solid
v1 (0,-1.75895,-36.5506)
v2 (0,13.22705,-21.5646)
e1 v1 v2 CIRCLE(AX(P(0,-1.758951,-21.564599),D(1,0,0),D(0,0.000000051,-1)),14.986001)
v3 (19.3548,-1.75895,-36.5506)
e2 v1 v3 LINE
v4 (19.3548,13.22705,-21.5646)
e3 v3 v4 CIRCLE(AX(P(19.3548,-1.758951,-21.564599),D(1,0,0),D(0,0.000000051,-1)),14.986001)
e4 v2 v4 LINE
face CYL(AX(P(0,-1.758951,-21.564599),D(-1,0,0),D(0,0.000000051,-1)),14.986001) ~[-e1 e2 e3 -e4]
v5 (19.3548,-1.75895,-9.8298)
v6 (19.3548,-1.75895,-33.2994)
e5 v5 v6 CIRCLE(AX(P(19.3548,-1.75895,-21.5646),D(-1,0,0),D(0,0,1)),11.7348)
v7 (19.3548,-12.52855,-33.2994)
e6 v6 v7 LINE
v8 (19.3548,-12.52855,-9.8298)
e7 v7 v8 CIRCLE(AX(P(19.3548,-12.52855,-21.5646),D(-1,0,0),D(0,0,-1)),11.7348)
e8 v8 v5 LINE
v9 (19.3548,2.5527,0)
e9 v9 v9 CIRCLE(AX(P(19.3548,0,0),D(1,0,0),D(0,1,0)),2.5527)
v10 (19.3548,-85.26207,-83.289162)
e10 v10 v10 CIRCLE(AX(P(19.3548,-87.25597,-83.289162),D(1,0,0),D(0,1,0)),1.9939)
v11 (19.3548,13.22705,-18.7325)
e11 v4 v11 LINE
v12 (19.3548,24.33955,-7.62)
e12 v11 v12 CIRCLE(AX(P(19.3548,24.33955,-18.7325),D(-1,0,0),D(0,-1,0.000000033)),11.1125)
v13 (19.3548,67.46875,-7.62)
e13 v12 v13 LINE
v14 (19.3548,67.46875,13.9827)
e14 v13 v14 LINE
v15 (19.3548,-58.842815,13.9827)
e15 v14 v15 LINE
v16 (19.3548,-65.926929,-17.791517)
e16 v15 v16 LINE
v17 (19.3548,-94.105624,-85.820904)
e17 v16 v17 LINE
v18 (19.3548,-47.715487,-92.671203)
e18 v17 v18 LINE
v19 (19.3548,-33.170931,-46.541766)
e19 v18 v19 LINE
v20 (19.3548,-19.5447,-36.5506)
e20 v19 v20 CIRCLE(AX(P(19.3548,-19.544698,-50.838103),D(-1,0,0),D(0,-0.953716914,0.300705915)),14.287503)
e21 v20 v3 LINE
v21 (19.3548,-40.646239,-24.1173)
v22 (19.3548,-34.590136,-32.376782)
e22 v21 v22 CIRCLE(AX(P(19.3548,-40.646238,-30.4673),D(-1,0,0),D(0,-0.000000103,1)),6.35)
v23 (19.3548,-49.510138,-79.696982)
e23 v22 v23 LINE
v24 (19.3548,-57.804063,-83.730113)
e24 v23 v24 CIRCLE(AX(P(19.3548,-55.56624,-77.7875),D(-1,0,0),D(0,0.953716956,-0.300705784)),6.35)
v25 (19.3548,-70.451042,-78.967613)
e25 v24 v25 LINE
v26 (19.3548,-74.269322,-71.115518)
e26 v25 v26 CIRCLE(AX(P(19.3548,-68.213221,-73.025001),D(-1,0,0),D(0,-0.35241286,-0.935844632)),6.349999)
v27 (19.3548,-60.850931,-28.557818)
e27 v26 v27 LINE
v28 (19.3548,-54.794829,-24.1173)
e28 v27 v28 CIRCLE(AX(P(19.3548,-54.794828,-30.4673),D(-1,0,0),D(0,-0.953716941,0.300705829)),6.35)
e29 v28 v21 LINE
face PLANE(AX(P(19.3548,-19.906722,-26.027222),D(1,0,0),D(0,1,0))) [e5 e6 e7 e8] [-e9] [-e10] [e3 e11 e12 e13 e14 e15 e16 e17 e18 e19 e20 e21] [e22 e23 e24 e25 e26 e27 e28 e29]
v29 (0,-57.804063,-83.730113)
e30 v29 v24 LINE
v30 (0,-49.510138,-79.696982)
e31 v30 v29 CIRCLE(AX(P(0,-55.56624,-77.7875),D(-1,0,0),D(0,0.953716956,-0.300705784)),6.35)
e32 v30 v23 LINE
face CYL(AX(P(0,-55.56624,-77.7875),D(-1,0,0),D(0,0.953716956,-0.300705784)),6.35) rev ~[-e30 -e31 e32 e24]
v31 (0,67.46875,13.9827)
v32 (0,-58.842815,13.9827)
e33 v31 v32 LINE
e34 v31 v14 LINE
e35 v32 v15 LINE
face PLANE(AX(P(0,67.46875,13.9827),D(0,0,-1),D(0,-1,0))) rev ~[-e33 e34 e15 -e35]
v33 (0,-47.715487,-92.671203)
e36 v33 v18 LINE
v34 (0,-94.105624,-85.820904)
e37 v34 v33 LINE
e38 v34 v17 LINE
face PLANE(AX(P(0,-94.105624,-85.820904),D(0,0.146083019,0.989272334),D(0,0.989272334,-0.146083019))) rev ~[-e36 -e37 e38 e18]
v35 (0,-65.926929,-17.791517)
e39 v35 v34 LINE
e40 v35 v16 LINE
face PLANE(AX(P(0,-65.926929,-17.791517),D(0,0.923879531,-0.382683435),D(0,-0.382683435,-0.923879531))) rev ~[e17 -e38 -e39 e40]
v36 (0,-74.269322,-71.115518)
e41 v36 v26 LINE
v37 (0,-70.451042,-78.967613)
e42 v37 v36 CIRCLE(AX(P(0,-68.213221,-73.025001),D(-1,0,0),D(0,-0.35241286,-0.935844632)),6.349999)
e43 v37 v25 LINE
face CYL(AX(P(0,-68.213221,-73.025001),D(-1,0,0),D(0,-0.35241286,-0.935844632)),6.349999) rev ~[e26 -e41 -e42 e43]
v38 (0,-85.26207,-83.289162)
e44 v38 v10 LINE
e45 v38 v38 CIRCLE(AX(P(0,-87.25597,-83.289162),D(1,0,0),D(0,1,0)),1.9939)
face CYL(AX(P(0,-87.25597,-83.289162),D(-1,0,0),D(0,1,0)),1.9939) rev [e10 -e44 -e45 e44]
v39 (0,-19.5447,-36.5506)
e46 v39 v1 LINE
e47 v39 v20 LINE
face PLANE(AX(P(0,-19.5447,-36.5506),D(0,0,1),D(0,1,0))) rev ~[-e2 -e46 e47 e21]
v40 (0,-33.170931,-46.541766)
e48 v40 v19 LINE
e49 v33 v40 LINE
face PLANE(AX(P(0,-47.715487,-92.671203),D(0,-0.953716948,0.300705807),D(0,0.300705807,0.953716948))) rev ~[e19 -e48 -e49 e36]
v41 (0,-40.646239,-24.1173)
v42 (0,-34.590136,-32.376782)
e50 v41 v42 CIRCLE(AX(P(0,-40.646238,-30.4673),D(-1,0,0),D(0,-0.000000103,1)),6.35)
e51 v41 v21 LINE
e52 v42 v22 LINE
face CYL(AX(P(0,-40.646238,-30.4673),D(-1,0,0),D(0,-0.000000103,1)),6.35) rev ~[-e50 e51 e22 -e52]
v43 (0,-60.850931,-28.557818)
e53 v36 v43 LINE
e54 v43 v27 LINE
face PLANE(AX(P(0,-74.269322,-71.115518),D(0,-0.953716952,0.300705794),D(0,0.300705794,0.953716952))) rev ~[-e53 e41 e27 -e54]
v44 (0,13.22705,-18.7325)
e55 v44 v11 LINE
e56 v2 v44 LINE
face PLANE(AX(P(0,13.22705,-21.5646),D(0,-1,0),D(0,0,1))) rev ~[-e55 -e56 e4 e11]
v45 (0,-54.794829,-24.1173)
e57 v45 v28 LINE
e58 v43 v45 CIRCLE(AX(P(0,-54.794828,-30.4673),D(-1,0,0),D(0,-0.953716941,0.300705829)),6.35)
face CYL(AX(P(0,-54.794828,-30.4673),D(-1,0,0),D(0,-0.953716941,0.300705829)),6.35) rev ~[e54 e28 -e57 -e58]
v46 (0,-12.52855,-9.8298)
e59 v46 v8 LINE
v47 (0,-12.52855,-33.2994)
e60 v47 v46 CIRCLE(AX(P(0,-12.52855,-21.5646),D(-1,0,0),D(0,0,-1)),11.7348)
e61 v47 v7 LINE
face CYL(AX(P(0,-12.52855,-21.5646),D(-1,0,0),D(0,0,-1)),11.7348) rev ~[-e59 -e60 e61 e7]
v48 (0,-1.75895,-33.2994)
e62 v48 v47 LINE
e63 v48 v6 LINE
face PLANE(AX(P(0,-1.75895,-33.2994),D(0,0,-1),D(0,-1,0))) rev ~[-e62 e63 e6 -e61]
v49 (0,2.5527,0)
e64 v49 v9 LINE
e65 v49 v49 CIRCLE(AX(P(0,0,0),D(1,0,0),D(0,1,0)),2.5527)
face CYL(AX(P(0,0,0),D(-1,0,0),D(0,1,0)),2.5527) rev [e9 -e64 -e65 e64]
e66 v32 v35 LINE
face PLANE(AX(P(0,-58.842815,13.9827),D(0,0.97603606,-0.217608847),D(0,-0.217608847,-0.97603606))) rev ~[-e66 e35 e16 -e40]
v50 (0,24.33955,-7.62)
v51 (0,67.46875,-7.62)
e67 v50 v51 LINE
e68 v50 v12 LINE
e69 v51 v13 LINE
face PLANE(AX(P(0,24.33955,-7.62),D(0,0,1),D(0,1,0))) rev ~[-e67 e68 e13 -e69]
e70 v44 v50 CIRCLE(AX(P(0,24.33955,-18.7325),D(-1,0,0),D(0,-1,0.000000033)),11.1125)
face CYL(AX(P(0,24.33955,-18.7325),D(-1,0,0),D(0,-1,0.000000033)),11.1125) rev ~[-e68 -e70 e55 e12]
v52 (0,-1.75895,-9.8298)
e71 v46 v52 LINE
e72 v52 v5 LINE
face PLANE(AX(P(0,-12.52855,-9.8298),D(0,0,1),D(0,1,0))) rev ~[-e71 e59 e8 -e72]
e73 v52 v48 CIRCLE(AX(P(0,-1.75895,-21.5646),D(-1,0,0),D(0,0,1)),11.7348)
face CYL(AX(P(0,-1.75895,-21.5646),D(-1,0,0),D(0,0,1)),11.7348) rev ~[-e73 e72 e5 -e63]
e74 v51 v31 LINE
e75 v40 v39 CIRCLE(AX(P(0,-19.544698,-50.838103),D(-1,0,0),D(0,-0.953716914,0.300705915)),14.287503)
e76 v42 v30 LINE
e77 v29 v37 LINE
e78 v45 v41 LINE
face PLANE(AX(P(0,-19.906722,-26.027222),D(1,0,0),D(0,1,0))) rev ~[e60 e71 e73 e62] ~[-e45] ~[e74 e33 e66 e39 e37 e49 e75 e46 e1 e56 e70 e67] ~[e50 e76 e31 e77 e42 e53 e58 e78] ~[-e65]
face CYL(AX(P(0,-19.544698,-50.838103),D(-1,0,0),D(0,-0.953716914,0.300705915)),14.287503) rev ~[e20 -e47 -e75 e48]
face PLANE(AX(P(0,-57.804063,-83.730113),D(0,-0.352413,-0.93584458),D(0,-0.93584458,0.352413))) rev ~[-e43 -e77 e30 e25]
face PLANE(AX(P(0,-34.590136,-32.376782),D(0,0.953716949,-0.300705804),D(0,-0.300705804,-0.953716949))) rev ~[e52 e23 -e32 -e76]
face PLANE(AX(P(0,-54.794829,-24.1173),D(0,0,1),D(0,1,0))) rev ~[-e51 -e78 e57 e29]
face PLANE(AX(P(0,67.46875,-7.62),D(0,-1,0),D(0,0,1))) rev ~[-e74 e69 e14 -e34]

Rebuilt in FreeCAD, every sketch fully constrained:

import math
import FreeCAD as App
import Part
import Sketcher

V = App.Vector
Q = App.Units.Quantity

doc = App.newDocument("Part")
params = doc.addObject("Spreadsheet::Sheet", "Params")
for row, (alias, value) in enumerate([
    ("sketch1_radius", "0.59 in"),
    ("sketch1_radius2", "0.25 in"),
    ("sketch1_diameter", "0.157 in"),
    ("sketch1_diameter2", "0.201 in"),
    ("sketch1_radius3", "0.5625001 in"),
    ("pad1_length", "0.762 in"),
], start=1):
    params.set(f"A{row}", alias)
    params.set(f"B{row}", "=" + value)
    params.setAlias(f"B{row}", alias)

body = doc.addObject("PartDesign::Body", "Body")

# Sketch on YZ plane
sketch1 = body.newObject("Sketcher::SketchObject", "Sketch")
sketch1.AttachmentSupport = (doc.getObject("YZ_Plane"), [""])
sketch1.MapMode = "FlatFace"
sketch1.addGeometry([
    Part.LineSegment(V(-94.1, -85.8, 0), V(-47.7, -92.7, 0)),  # 0
    Part.LineSegment(V(-47.7, -92.7, 0), V(-33.2, -46.5, 0)),  # 1
    Part.ArcOfCircle(Part.Circle(V(-19.5, -50.8, 0), V(0, 0, 1), 14.3), math.radians(90), math.radians(162)),  # 2
    Part.LineSegment(V(-19.5, -36.6, 0), V(-1.8, -36.6, 0)),  # 3
    Part.ArcOfCircle(Part.Circle(V(-1.8, -21.6, 0), V(0, 0, 1), 15), math.radians(-90), math.radians(0)),  # 4
    Part.LineSegment(V(13.2, -21.6, 0), V(13.2, -18.7, 0)),  # 5
    Part.ArcOfCircle(Part.Circle(V(24.3, -18.7, 0), V(0, 0, 1), 11.1), math.radians(90), math.radians(180)),  # 6
    Part.LineSegment(V(24.3, -7.6, 0), V(67.5, -7.6, 0)),  # 7
    Part.LineSegment(V(67.5, -7.6, 0), V(67.5, 14, 0)),  # 8
    Part.LineSegment(V(67.5, 14, 0), V(-58.8, 14, 0)),  # 9
    Part.LineSegment(V(-58.8, 14, 0), V(-65.9, -17.8, 0)),  # 10
    Part.LineSegment(V(-65.9, -17.8, 0), V(-94.1, -85.8, 0)),  # 11
    Part.Circle(V(-87.3, -83.3, 0), V(0, 0, 1), 2),  # 12
    Part.LineSegment(V(-74.3, -71.1, 0), V(-60.9, -28.6, 0)),  # 13
    Part.ArcOfCircle(Part.Circle(V(-54.8, -30.5, 0), V(0, 0, 1), 6.4), math.radians(90), math.radians(162)),  # 14
    Part.LineSegment(V(-54.8, -24.1, 0), V(-40.6, -24.1, 0)),  # 15
    Part.ArcOfCircle(Part.Circle(V(-40.6, -30.5, 0), V(0, 0, 1), 6.3), math.radians(-18), math.radians(90)),  # 16
    Part.LineSegment(V(-34.6, -32.4, 0), V(-49.5, -79.7, 0)),  # 17
    Part.ArcOfCircle(Part.Circle(V(-55.6, -77.8, 0), V(0, 0, 1), 6.3), math.radians(-111), math.radians(-17)),  # 18
    Part.LineSegment(V(-57.8, -83.7, 0), V(-70.5, -79, 0)),  # 19
    Part.ArcOfCircle(Part.Circle(V(-68.2, -73, 0), V(0, 0, 1), 6.3), math.radians(162), math.radians(249)),  # 20
    Part.LineSegment(V(-1.8, -33.3, 0), V(-12.5, -33.3, 0)),  # 21
    Part.ArcOfCircle(Part.Circle(V(-12.5, -21.6, 0), V(0, 0, 1), 11.7), math.radians(90), math.radians(270)),  # 22
    Part.LineSegment(V(-12.5, -9.8, 0), V(-1.8, -9.8, 0)),  # 23
    Part.ArcOfCircle(Part.Circle(V(-1.8, -21.6, 0), V(0, 0, 1), 11.7), math.radians(-90), math.radians(90)),  # 24
    Part.Circle(V(0, 0, 0), V(0, 0, 1), 2.6),  # 25
], False)
sketch1.addConstraint([
    Sketcher.Constraint("Coincident", 0, 2, 1, 1),
    Sketcher.Constraint("Tangent", 1, 2, 2, 2),
    Sketcher.Constraint("Tangent", 2, 1, 3, 1),
    Sketcher.Constraint("Tangent", 3, 2, 4, 1),
    Sketcher.Constraint("Tangent", 4, 2, 5, 1),
    Sketcher.Constraint("Tangent", 5, 2, 6, 2),
    Sketcher.Constraint("Tangent", 6, 1, 7, 1),
    Sketcher.Constraint("Coincident", 7, 2, 8, 1),
    Sketcher.Constraint("Coincident", 8, 2, 9, 1),
    Sketcher.Constraint("Coincident", 9, 2, 10, 1),
    Sketcher.Constraint("Coincident", 10, 2, 11, 1),
    Sketcher.Constraint("Coincident", 11, 2, 0, 1),
    Sketcher.Constraint("Tangent", 13, 2, 14, 2),
    Sketcher.Constraint("Tangent", 14, 1, 15, 1),
    Sketcher.Constraint("Tangent", 15, 2, 16, 2),
    Sketcher.Constraint("Tangent", 16, 1, 17, 1),
    Sketcher.Constraint("Tangent", 17, 2, 18, 2),
    Sketcher.Constraint("Tangent", 18, 1, 19, 1),
    Sketcher.Constraint("Tangent", 19, 2, 20, 2),
    Sketcher.Constraint("Tangent", 20, 1, 13, 1),
    Sketcher.Constraint("Tangent", 21, 2, 22, 2),
    Sketcher.Constraint("Tangent", 22, 1, 23, 1),
    Sketcher.Constraint("Tangent", 23, 2, 24, 2),
    Sketcher.Constraint("Tangent", 24, 1, 21, 1),
    Sketcher.Constraint("Horizontal", 3),
    Sketcher.Constraint("Vertical", 5),
    Sketcher.Constraint("Horizontal", 7),
    Sketcher.Constraint("Vertical", 8),
    Sketcher.Constraint("Horizontal", 9),
    Sketcher.Constraint("Horizontal", 15),
    Sketcher.Constraint("Horizontal", 21),
    Sketcher.Constraint("Horizontal", 23),
    Sketcher.Constraint("Coincident", 25, 3, -1, 1),
    Sketcher.Constraint("Coincident", 24, 3, 4, 3),
    Sketcher.Constraint("Equal", 14, 16),
    Sketcher.Constraint("Equal", 16, 18),
    Sketcher.Constraint("Equal", 18, 20),
    Sketcher.Constraint("Parallel", 1, 13),
    Sketcher.Constraint("Parallel", 13, 17),
    Sketcher.Constraint("Radius", 4, Q("0.59 in")),
    Sketcher.Constraint("Radius", 14, Q("0.25 in")),
    Sketcher.Constraint("Diameter", 12, Q("0.157 in")),
    Sketcher.Constraint("Diameter", 25, Q("0.201 in")),
    Sketcher.Constraint("Radius", 2, Q("0.5625001 in")),
    Sketcher.Constraint("Radius", 6, Q("0.4375 in")),
    Sketcher.Constraint("Radius", 22, Q("0.462 in")),
    Sketcher.Constraint("DistanceY", 6, 1, -1, 1, Q("0.3 in")),
    Sketcher.Constraint("Angle", 0, Q("-8.399999 deg")),
    Sketcher.Constraint("Angle", 1, Q("72.5 deg")),
    Sketcher.Constraint("Angle", 11, Q("-112.5 deg")),
    Sketcher.Constraint("DistanceX", 7, 1, 7, 2, Q("1.698 in")),
    Sketcher.Constraint("DistanceX", 21, 2, 21, 1, Q("0.424 in")),
    Sketcher.Constraint("DistanceY", 14, 3, 9, 2, Q("1.75 in")),
    Sketcher.Constraint("DistanceY", 5, 1, 5, 2, Q("0.1115 in")),
    Sketcher.Constraint("DistanceY", 8, 1, 8, 2, Q("0.8505 in")),
    Sketcher.Constraint("DistanceY", 18, 3, -1, 1, Q("3.0625 in")),
    Sketcher.Constraint("DistanceY", 20, 3, -1, 1, Q("2.875 in")),
    Sketcher.Constraint("DistanceX", -1, 1, 7, 2, Q("2.65625 in")),
    Sketcher.Constraint("DistanceX", 3, 1, 3, 2, Q("17.78575 mm")),
    Sketcher.Constraint("DistanceX", 15, 1, 15, 2, Q("14.14859 mm")),
    Sketcher.Constraint("DistanceY", 0, 2, 2, 3, Q("41.8331 mm")),
    Sketcher.Constraint("DistanceX", 10, 2, 14, 3, Q("11.132101 mm")),
    Sketcher.Constraint("DistanceY", 0, 2, 11, 2, Q("6.850299 mm")),
    Sketcher.Constraint("DistanceY", 13, 2, 10, 2, Q("10.766301 mm")),
    Sketcher.Constraint("DistanceX", 9, 2, 9, 1, Q("126.311565 mm")),
    Sketcher.Constraint("DistanceX", 12, 3, -1, 1, Q("87.25597 mm")),
    Sketcher.Constraint("DistanceY", 12, 3, 2, 3, Q("32.451059 mm")),
])
sketch1.setExpression("Constraints[39]", "Params.sketch1_radius")
sketch1.setExpression("Constraints[40]", "Params.sketch1_radius2")
sketch1.setExpression("Constraints[41]", "Params.sketch1_diameter")
sketch1.setExpression("Constraints[42]", "Params.sketch1_diameter2")
sketch1.setExpression("Constraints[43]", "Params.sketch1_radius3")
pad1 = body.newObject("PartDesign::Pad", "Pad")
pad1.Profile = sketch1
pad1.setExpression("Length", "Params.pad1_length")

doc.recompute()
